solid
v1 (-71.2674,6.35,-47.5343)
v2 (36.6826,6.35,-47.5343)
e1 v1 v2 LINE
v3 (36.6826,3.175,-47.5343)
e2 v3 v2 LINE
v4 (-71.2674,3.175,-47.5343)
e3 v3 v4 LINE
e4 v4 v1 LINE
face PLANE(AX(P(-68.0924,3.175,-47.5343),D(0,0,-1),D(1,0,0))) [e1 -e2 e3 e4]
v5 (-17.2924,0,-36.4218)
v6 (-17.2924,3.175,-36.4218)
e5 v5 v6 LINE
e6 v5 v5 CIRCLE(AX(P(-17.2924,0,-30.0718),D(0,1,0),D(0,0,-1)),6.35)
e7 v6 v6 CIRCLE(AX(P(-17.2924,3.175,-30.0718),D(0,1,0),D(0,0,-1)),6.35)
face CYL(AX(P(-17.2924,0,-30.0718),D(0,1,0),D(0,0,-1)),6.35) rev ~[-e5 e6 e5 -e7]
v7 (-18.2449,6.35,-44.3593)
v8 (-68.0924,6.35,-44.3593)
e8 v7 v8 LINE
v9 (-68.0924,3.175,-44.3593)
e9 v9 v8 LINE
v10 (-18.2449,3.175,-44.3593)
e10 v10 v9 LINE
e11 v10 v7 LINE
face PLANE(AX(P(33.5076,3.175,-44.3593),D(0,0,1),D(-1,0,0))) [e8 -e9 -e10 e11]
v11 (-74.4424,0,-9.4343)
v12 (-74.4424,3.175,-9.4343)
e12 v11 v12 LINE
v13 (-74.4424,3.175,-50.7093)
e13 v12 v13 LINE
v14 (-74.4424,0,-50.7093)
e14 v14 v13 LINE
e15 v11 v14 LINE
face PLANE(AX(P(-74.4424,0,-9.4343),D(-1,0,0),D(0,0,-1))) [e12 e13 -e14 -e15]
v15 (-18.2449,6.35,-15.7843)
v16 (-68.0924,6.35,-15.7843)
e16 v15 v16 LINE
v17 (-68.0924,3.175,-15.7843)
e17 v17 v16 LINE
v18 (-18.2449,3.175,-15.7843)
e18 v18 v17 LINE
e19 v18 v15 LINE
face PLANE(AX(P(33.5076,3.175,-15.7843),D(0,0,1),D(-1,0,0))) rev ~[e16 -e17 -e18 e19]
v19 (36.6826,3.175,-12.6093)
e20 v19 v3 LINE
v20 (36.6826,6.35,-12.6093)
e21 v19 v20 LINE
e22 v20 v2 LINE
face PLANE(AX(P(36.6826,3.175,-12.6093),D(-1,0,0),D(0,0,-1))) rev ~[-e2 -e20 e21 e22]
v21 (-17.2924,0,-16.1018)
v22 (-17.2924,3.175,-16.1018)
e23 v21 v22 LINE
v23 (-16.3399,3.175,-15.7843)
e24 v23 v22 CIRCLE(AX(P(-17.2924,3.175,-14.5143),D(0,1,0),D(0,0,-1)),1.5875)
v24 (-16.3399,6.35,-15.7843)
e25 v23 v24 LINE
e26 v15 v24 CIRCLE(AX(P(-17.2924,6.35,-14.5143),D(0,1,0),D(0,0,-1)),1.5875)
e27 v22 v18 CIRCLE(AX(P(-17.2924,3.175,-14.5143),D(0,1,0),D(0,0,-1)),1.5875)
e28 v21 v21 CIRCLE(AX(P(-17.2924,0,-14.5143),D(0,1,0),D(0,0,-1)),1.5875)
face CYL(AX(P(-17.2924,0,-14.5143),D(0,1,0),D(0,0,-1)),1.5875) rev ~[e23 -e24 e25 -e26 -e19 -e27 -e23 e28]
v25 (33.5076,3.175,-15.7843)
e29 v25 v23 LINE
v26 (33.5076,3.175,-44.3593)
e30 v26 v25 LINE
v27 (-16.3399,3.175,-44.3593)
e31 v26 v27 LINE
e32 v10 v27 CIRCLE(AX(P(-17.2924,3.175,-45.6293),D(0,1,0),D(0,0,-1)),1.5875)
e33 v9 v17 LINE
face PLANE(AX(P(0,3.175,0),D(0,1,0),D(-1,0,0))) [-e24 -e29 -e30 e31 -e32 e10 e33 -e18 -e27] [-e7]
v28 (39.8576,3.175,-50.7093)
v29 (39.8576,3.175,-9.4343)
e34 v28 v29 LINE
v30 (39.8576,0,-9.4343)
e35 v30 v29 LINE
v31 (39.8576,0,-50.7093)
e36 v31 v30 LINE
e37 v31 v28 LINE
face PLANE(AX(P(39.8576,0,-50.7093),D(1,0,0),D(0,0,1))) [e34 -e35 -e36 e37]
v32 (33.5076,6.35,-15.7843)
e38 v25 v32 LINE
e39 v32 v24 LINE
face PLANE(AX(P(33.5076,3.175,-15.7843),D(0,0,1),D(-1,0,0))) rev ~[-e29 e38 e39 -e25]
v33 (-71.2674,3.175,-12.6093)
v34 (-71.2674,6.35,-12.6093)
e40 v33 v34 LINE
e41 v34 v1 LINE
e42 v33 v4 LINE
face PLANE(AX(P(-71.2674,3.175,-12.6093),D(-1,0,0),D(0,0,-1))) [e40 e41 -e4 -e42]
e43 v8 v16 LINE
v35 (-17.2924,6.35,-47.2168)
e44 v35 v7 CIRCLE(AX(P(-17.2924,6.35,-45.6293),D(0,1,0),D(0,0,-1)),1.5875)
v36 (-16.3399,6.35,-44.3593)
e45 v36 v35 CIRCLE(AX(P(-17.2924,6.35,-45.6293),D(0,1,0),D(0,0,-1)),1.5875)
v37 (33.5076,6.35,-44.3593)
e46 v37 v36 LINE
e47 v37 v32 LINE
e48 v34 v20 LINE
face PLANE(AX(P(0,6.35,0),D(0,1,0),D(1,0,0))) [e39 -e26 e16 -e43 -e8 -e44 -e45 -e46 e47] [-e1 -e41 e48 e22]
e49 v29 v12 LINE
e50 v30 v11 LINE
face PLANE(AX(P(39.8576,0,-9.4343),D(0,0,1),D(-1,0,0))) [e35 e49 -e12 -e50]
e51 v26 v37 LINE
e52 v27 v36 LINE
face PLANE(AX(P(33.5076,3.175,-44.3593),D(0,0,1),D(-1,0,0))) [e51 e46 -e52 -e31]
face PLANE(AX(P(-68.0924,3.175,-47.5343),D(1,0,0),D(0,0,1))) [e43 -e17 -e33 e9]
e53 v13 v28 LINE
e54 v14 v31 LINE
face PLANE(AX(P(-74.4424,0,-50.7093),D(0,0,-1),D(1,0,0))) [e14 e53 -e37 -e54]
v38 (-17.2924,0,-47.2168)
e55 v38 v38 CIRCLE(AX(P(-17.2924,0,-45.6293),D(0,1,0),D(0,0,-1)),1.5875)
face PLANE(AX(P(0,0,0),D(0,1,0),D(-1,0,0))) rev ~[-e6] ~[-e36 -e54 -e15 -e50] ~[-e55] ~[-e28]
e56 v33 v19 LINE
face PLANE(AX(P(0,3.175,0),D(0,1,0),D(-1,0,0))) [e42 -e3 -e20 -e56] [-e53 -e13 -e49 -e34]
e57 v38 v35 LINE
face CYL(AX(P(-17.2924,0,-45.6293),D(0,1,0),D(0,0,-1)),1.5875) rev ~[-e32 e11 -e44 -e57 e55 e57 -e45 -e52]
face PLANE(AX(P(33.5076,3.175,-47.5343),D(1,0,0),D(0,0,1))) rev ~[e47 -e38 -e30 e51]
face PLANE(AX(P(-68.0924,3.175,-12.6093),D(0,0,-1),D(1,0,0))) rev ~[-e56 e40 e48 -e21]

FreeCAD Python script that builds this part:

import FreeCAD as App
import Part
import Sketcher
Q = App.Units.Quantity


def add_polygon(sketch, points):
    """Adds a closed chain of lines whose ends are joined by coincident constraints."""
    first, n = sketch.GeometryCount, len(points)
    for a, b in zip(points, points[1:] + points[:1]):
        sketch.addGeometry(Part.LineSegment(App.Vector(*a, 0), App.Vector(*b, 0)), False)
    for i in range(n):
        sketch.addConstraint(Sketcher.Constraint("Coincident", first + i, 2, first + (i + 1) % n, 1))

doc = App.newDocument("Part")
body = doc.addObject("PartDesign::Body", "Body")

sketch1 = body.newObject("Sketcher::SketchObject", "Sketch")
sketch1.AttachmentSupport = (doc.getObject("XZ_Plane"), [""])
sketch1.MapMode = "FlatFace"
add_polygon(sketch1, [(39.8576, -50.7093), (-74.4424, -50.7093), (-74.4424, -9.4343), (39.8576, -9.4343)])
sketch1.addConstraint([
    Sketcher.Constraint("Horizontal", 0),
    Sketcher.Constraint("Vertical", 1),
    Sketcher.Constraint("Horizontal", 2),
    Sketcher.Constraint("Vertical", 3),
    Sketcher.Constraint("DistanceX", 0, 2, 0, 1, Q("4.5 in")),
    Sketcher.Constraint("DistanceY", 1, 1, 1, 2, Q("1.625 in")),
    Sketcher.Constraint("DistanceX", 0, 2, -1, 1, Q("2.9308 in")),
    Sketcher.Constraint("DistanceY", 0, 2, -1, 1, 50.7093),
])
pad1 = body.newObject("PartDesign::Pad", "Pad")
pad1.Profile = sketch1
pad1.Length = Q("0.125 in")
pad1.Reversed = True

sketch2 = body.newObject("Sketcher::SketchObject", "Sketch001")
sketch2.AttachmentSupport = (doc.getObject("XZ_Plane"), [""])
sketch2.MapMode = "FlatFace"
sketch2.AttachmentOffset = App.Placement(App.Vector(0, 0, -0.125 * 25.4), App.Rotation())
add_polygon(sketch2, [(-68.0924, -47.5343), (-71.2674, -47.5343), (-71.2674, -12.6093), (-68.0924, -12.6093)])
sketch2.addConstraint([
    Sketcher.Constraint("Horizontal", 0),
    Sketcher.Constraint("Vertical", 1),
    Sketcher.Constraint("Horizontal", 2),
    Sketcher.Constraint("Vertical", 3),
    Sketcher.Constraint("DistanceX", 0, 2, 0, 1, Q("0.125 in")),
    Sketcher.Constraint("DistanceY", 1, 1, 1, 2, Q("1.375 in")),
    Sketcher.Constraint("DistanceX", 0, 2, -1, 1, Q("2.8058 in")),
    Sketcher.Constraint("DistanceY", 0, 2, -1, 1, 47.5343),
])
pad2 = body.newObject("PartDesign::Pad", "Pad001")
pad2.Profile = sketch2
pad2.Length = Q("0.125 in")
pad2.Reversed = True

sketch3 = body.newObject("Sketcher::SketchObject", "Sketch002")
sketch3.AttachmentSupport = (doc.getObject("XZ_Plane"), [""])
sketch3.MapMode = "FlatFace"
sketch3.AttachmentOffset = App.Placement(App.Vector(0, 0, -0.125 * 25.4), App.Rotation())
add_polygon(sketch3, [(36.6826, -12.6093), (36.6826, -47.5343), (33.5076, -47.5343), (33.5076, -12.6093)])
sketch3.addConstraint([
    Sketcher.Constraint("Vertical", 0),
    Sketcher.Constraint("Horizontal", 1),
    Sketcher.Constraint("Vertical", 2),
    Sketcher.Constraint("Horizontal", 3),
    Sketcher.Constraint("DistanceX", 1, 2, 1, 1, Q("0.125 in")),
    Sketcher.Constraint("DistanceY", 0, 2, 0, 1, Q("1.375 in")),
    Sketcher.Constraint("DistanceX", -1, 1, 0, 2, Q("1.4442 in")),
    Sketcher.Constraint("DistanceY", 0, 2, -1, 1, 47.5343),
])
pad3 = body.newObject("PartDesign::Pad", "Pad002")
pad3.Profile = sketch3
pad3.Length = Q("0.125 in")
pad3.Reversed = True

sketch4 = body.newObject("Sketcher::SketchObject", "Sketch003")
sketch4.AttachmentSupport = (doc.getObject("XZ_Plane"), [""])
sketch4.MapMode = "FlatFace"
sketch4.AttachmentOffset = App.Placement(App.Vector(0, 0, -0.125 * 25.4), App.Rotation())
add_polygon(sketch4, [(33.5076, -47.5343), (-68.0924, -47.5343), (-68.0924, -44.3593), (33.5076, -44.3593)])
sketch4.addConstraint([
    Sketcher.Constraint("Horizontal", 0),
    Sketcher.Constraint("Vertical", 1),
    Sketcher.Constraint("Horizontal", 2),
    Sketcher.Constraint("Vertical", 3),
    Sketcher.Constraint("DistanceX", 0, 2, 0, 1, Q("4 in")),
    Sketcher.Constraint("DistanceY", 1, 1, 1, 2, Q("0.125 in")),
    Sketcher.Constraint("DistanceX", 0, 2, -1, 1, Q("2.6808 in")),
    Sketcher.Constraint("DistanceY", 0, 2, -1, 1, 47.5343),
])
pad4 = body.newObject("PartDesign::Pad", "Pad003")
pad4.Profile = sketch4
pad4.Length = Q("0.125 in")
pad4.Reversed = True

sketch5 = body.newObject("Sketcher::SketchObject", "Sketch004")
sketch5.AttachmentSupport = (doc.getObject("XZ_Plane"), [""])
sketch5.MapMode = "FlatFace"
sketch5.AttachmentOffset = App.Placement(App.Vector(0, 0, -0.125 * 25.4), App.Rotation())
add_polygon(sketch5, [(-68.0924, -15.7843), (-68.0924, -12.6093), (33.5076, -12.6093), (33.5076, -15.7843)])
sketch5.addConstraint([
    Sketcher.Constraint("Vertical", 0),
    Sketcher.Constraint("Horizontal", 1),
    Sketcher.Constraint("Vertical", 2),
    Sketcher.Constraint("Horizontal", 3),
    Sketcher.Constraint("DistanceX", 1, 1, 1, 2, Q("4 in")),
    Sketcher.Constraint("DistanceY", 0, 1, 0, 2, Q("0.125 in")),
    Sketcher.Constraint("DistanceX", 0, 2, -1, 1, Q("2.6808 in")),
    Sketcher.Constraint("DistanceY", 0, 2, -1, 1, 12.6093),
])
pad5 = body.newObject("PartDesign::Pad", "Pad004")
pad5.Profile = sketch5
pad5.Length = Q("0.125 in")
pad5.Reversed = True

sketch6 = body.newObject("Sketcher::SketchObject", "Sketch005")
sketch6.AttachmentSupport = (doc.getObject("XZ_Plane"), [""])
sketch6.MapMode = "FlatFace"
sketch6.addGeometry(Part.Circle(App.Vector(-17.2924, -30.0718, 0), App.Vector(0, 0, 1), 6.35), False)
sketch6.addConstraint([
    Sketcher.Constraint("Diameter", 0, Q("0.5 in")),
    Sketcher.Constraint("DistanceX", 0, 3, -1, 1, Q("0.6808 in")),
    Sketcher.Constraint("DistanceY", 0, 3, -1, 1, 30.0718),
])
doc.recompute()
hole = body.newObject("PartDesign::Hole", "Hole")
hole.Profile = sketch6
hole.ThreadType = "None"
hole.Diameter = Q("0.5 in")
hole.DepthType = "ThroughAll"

sketch7 = body.newObject("Sketcher::SketchObject", "Sketch006")
sketch7.AttachmentSupport = (doc.getObject("XZ_Plane"), [""])
sketch7.MapMode = "FlatFace"
sketch7.addGeometry(Part.Circle(App.Vector(-17.2924, -14.5143, 0), App.Vector(0, 0, 1), 1.5875), False)
sketch7.addConstraint([
    Sketcher.Constraint("Diameter", 0, Q("0.125 in")),
    Sketcher.Constraint("DistanceX", 0, 3, -1, 1, Q("0.6808 in")),
    Sketcher.Constraint("DistanceY", 0, 3, -1, 1, 14.5143),
])
doc.recompute()
hole2 = body.newObject("PartDesign::Hole", "Hole001")
hole2.Profile = sketch7
hole2.ThreadType = "None"
hole2.Diameter = Q("0.125 in")
hole2.DepthType = "ThroughAll"

sketch8 = body.newObject("Sketcher::SketchObject", "Sketch007")
sketch8.AttachmentSupport = (doc.getObject("XZ_Plane"), [""])
sketch8.MapMode = "FlatFace"
sketch8.addGeometry(Part.Circle(App.Vector(-17.2924, -45.6293, 0), App.Vector(0, 0, 1), 1.5875), False)
sketch8.addConstraint([
    Sketcher.Constraint("Diameter", 0, Q("0.125 in")),
    Sketcher.Constraint("DistanceX", 0, 3, -1, 1, Q("0.6808 in")),
    Sketcher.Constraint("DistanceY", 0, 3, -1, 1, 45.6293),
])
doc.recompute()
hole3 = body.newObject("PartDesign::Hole", "Hole002")
hole3.Profile = sketch8
hole3.ThreadType = "None"
hole3.Diameter = Q("0.125 in")
hole3.DepthType = "ThroughAll"

doc.recompute()
